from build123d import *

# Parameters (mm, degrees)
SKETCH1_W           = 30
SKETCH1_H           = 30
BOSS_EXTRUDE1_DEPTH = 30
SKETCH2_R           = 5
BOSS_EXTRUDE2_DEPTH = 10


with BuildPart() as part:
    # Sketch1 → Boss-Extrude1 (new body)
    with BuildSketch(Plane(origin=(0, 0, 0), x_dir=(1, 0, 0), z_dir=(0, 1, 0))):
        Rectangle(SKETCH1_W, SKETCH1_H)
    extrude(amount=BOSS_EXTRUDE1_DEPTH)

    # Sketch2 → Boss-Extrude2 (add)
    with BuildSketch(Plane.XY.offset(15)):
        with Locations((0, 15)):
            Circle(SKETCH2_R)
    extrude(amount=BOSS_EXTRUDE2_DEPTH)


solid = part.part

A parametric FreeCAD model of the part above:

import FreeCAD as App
import Part
import Sketcher
from FreeCAD import Vector
Q = App.Units.Quantity

doc = App.newDocument("Part")
body = doc.addObject("PartDesign::Body", "Body")

sketch1 = body.newObject("Sketcher::SketchObject", "Sketch")
sketch1.AttachmentSupport = (doc.getObject("XZ_Plane"), [""])
sketch1.MapMode = "FlatFace"
sketch1.addGeometry([
    Part.LineSegment(Vector(-15, -15, 0), Vector(-15, 15, 0)),
    Part.LineSegment(Vector(-15, 15, 0), Vector(15, 15, 0)),
    Part.LineSegment(Vector(15, 15, 0), Vector(15, -15, 0)),
    Part.LineSegment(Vector(15, -15, 0), Vector(-15, -15, 0)),
], False)
sketch1.addConstraint([
    Sketcher.Constraint("Coincident", 0, 2, 1, 1),
    Sketcher.Constraint("Coincident", 1, 2, 2, 1),
    Sketcher.Constraint("Coincident", 2, 2, 3, 1),
    Sketcher.Constraint("Coincident", 3, 2, 0, 1),
    Sketcher.Constraint("Vertical", 0),
    Sketcher.Constraint("Horizontal", 1),
    Sketcher.Constraint("Vertical", 2),
    Sketcher.Constraint("Horizontal", 3),
    Sketcher.Constraint("Symmetric", 0, 2, 2, 2, -1, 1),
    Sketcher.Constraint("Equal", 3, 0),
    Sketcher.Constraint("DistanceX", 1, 1, 1, 2, Q("30 mm")),
])
pad1 = body.newObject("PartDesign::Pad", "Pad")
pad1.Profile = sketch1
pad1.Length = 30
pad1.Reversed = True

sketch2 = body.newObject("Sketcher::SketchObject", "Sketch001")
sketch2.AttachmentSupport = (doc.getObject("XY_Plane"), [""])
sketch2.MapMode = "FlatFace"
sketch2.AttachmentOffset = App.Placement(Vector(0, 0, 15), App.Rotation())
sketch2.addGeometry(Part.Circle(Vector(0, 15, 0), Vector(0, 0, 1), 5), False)
sketch2.addConstraint([
    Sketcher.Constraint("PointOnObject", 0, 3, -2),
    Sketcher.Constraint("Diameter", 0, Q("10 mm")),
    Sketcher.Constraint("DistanceY", -1, 1, 0, 3, Q("15 mm")),
])
pad2 = body.newObject("PartDesign::Pad", "Pad001")
pad2.Profile = sketch2
pad2.Length = 10

doc.recompute()
